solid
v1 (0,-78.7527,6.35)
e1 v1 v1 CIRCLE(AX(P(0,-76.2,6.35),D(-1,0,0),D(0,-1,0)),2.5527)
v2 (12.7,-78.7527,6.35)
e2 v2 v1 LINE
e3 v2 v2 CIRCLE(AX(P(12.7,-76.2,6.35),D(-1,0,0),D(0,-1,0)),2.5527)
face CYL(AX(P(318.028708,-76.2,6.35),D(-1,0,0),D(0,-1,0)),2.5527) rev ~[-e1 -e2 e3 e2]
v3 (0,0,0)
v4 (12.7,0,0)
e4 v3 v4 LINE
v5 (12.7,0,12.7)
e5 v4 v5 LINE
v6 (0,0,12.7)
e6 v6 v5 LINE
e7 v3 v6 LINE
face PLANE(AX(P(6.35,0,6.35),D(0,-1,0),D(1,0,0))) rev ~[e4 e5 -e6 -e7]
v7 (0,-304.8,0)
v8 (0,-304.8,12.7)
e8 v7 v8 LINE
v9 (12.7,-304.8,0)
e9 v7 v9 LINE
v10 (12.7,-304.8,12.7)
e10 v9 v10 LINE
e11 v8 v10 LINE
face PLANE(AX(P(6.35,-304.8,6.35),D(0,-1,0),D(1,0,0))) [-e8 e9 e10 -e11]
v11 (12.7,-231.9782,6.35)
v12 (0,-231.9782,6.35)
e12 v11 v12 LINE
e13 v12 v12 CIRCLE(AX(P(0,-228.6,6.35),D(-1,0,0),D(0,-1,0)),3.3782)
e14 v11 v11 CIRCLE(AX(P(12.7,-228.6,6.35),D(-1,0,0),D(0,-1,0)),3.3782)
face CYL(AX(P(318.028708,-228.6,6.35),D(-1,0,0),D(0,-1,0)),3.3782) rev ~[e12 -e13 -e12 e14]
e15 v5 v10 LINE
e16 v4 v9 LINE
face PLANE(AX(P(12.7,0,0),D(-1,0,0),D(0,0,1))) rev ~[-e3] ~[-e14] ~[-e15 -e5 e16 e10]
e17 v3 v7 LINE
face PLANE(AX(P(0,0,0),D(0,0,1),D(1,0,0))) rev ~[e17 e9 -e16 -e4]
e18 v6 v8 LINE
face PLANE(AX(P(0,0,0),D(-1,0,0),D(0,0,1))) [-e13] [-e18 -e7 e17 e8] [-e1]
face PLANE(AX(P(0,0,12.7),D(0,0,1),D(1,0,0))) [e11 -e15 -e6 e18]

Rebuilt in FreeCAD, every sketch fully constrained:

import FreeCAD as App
import Part
import Sketcher
Q = App.Units.Quantity

doc = App.newDocument("Part")
params = doc.addObject("Spreadsheet::Sheet", "Params")
for row, (alias, value) in enumerate([
    ("sketch1_width", "0.5 in"),
    ("pad1_length", "12 in"),
    ("sketch2_diameter", "0.266 in"),
    ("hole_diameter", "0.266 in"),
    ("sketch3_diameter", "0.201 in"),
    ("hole2_diameter", "0.201 in"),
], start=1):
    params.set(f"A{row}", alias)
    params.set(f"B{row}", "=" + value)
    params.setAlias(f"B{row}", alias)

body = doc.addObject("PartDesign::Body", "Body")

# Sketch on XZ plane
sketch1 = body.newObject("Sketcher::SketchObject", "Sketch")
sketch1.AttachmentSupport = (doc.getObject("XZ_Plane"), [""])
sketch1.MapMode = "FlatFace"
sketch1.addGeometry([
    Part.LineSegment(App.Vector(0, 13, 0), App.Vector(0, 0, 0)),
    Part.LineSegment(App.Vector(0, 0, 0), App.Vector(13, 0, 0)),
    Part.LineSegment(App.Vector(13, 0, 0), App.Vector(13, 13, 0)),
    Part.LineSegment(App.Vector(13, 13, 0), App.Vector(0, 13, 0)),
], False)
sketch1.addConstraint([
    Sketcher.Constraint("Coincident", 0, 2, 1, 1),
    Sketcher.Constraint("Coincident", 1, 2, 2, 1),
    Sketcher.Constraint("Coincident", 2, 2, 3, 1),
    Sketcher.Constraint("Coincident", 3, 2, 0, 1),
    Sketcher.Constraint("Vertical", 0),
    Sketcher.Constraint("Horizontal", 1),
    Sketcher.Constraint("Vertical", 2),
    Sketcher.Constraint("Horizontal", 3),
    Sketcher.Constraint("Coincident", 0, 2, -1, 1),
    Sketcher.Constraint("Equal", 3, 0),
    Sketcher.Constraint("DistanceX", 1, 1, 1, 2, Q("0.5 in")),
])
sketch1.setExpression("Constraints[10]", "Params.sketch1_width")
pad1 = body.newObject("PartDesign::Pad", "Pad")
pad1.Profile = sketch1
pad1.setExpression("Length", "Params.pad1_length")

# Sketch on YZ plane
sketch2 = body.newObject("Sketcher::SketchObject", "Sketch001")
sketch2.AttachmentSupport = (doc.getObject("YZ_Plane"), [""])
sketch2.MapMode = "FlatFace"
sketch2.AttachmentOffset = App.Placement(App.Vector(0, 0, 0.5 * 25.4), App.Rotation())
sketch2.addGeometry(Part.Circle(App.Vector(-228.6, 6.3, 0), App.Vector(0, 0, 1), 3.4), False)
sketch2.addConstraint([
    Sketcher.Constraint("Diameter", 0, Q("0.266 in")),
    Sketcher.Constraint("DistanceX", 0, 3, -1, 1, Q("9 in")),
    Sketcher.Constraint("DistanceY", -1, 1, 0, 3, Q("0.25 in")),
])
sketch2.setExpression("Constraints[0]", "Params.sketch2_diameter")
doc.recompute()
hole = body.newObject("PartDesign::Hole", "Hole")
hole.Profile = sketch2
hole.ThreadType = "None"
hole.setExpression("Diameter", "Params.hole_diameter")
hole.DepthType = "ThroughAll"

# Sketch on YZ plane
sketch3 = body.newObject("Sketcher::SketchObject", "Sketch002")
sketch3.AttachmentSupport = (doc.getObject("YZ_Plane"), [""])
sketch3.MapMode = "FlatFace"
sketch3.AttachmentOffset = App.Placement(App.Vector(0, 0, 0.5 * 25.4), App.Rotation())
sketch3.addGeometry(Part.Circle(App.Vector(-76.2, 6.3, 0), App.Vector(0, 0, 1), 2.6), False)
sketch3.addConstraint([
    Sketcher.Constraint("Diameter", 0, Q("0.201 in")),
    Sketcher.Constraint("DistanceX", 0, 3, -1, 1, Q("3 in")),
    Sketcher.Constraint("DistanceY", -1, 1, 0, 3, Q("0.25 in")),
])
sketch3.setExpression("Constraints[0]", "Params.sketch3_diameter")
doc.recompute()
hole2 = body.newObject("PartDesign::Hole", "Hole001")
hole2.Profile = sketch3
hole2.ThreadType = "None"
hole2.setExpression("Diameter", "Params.hole2_diameter")
hole2.DepthType = "ThroughAll"

doc.recompute()
